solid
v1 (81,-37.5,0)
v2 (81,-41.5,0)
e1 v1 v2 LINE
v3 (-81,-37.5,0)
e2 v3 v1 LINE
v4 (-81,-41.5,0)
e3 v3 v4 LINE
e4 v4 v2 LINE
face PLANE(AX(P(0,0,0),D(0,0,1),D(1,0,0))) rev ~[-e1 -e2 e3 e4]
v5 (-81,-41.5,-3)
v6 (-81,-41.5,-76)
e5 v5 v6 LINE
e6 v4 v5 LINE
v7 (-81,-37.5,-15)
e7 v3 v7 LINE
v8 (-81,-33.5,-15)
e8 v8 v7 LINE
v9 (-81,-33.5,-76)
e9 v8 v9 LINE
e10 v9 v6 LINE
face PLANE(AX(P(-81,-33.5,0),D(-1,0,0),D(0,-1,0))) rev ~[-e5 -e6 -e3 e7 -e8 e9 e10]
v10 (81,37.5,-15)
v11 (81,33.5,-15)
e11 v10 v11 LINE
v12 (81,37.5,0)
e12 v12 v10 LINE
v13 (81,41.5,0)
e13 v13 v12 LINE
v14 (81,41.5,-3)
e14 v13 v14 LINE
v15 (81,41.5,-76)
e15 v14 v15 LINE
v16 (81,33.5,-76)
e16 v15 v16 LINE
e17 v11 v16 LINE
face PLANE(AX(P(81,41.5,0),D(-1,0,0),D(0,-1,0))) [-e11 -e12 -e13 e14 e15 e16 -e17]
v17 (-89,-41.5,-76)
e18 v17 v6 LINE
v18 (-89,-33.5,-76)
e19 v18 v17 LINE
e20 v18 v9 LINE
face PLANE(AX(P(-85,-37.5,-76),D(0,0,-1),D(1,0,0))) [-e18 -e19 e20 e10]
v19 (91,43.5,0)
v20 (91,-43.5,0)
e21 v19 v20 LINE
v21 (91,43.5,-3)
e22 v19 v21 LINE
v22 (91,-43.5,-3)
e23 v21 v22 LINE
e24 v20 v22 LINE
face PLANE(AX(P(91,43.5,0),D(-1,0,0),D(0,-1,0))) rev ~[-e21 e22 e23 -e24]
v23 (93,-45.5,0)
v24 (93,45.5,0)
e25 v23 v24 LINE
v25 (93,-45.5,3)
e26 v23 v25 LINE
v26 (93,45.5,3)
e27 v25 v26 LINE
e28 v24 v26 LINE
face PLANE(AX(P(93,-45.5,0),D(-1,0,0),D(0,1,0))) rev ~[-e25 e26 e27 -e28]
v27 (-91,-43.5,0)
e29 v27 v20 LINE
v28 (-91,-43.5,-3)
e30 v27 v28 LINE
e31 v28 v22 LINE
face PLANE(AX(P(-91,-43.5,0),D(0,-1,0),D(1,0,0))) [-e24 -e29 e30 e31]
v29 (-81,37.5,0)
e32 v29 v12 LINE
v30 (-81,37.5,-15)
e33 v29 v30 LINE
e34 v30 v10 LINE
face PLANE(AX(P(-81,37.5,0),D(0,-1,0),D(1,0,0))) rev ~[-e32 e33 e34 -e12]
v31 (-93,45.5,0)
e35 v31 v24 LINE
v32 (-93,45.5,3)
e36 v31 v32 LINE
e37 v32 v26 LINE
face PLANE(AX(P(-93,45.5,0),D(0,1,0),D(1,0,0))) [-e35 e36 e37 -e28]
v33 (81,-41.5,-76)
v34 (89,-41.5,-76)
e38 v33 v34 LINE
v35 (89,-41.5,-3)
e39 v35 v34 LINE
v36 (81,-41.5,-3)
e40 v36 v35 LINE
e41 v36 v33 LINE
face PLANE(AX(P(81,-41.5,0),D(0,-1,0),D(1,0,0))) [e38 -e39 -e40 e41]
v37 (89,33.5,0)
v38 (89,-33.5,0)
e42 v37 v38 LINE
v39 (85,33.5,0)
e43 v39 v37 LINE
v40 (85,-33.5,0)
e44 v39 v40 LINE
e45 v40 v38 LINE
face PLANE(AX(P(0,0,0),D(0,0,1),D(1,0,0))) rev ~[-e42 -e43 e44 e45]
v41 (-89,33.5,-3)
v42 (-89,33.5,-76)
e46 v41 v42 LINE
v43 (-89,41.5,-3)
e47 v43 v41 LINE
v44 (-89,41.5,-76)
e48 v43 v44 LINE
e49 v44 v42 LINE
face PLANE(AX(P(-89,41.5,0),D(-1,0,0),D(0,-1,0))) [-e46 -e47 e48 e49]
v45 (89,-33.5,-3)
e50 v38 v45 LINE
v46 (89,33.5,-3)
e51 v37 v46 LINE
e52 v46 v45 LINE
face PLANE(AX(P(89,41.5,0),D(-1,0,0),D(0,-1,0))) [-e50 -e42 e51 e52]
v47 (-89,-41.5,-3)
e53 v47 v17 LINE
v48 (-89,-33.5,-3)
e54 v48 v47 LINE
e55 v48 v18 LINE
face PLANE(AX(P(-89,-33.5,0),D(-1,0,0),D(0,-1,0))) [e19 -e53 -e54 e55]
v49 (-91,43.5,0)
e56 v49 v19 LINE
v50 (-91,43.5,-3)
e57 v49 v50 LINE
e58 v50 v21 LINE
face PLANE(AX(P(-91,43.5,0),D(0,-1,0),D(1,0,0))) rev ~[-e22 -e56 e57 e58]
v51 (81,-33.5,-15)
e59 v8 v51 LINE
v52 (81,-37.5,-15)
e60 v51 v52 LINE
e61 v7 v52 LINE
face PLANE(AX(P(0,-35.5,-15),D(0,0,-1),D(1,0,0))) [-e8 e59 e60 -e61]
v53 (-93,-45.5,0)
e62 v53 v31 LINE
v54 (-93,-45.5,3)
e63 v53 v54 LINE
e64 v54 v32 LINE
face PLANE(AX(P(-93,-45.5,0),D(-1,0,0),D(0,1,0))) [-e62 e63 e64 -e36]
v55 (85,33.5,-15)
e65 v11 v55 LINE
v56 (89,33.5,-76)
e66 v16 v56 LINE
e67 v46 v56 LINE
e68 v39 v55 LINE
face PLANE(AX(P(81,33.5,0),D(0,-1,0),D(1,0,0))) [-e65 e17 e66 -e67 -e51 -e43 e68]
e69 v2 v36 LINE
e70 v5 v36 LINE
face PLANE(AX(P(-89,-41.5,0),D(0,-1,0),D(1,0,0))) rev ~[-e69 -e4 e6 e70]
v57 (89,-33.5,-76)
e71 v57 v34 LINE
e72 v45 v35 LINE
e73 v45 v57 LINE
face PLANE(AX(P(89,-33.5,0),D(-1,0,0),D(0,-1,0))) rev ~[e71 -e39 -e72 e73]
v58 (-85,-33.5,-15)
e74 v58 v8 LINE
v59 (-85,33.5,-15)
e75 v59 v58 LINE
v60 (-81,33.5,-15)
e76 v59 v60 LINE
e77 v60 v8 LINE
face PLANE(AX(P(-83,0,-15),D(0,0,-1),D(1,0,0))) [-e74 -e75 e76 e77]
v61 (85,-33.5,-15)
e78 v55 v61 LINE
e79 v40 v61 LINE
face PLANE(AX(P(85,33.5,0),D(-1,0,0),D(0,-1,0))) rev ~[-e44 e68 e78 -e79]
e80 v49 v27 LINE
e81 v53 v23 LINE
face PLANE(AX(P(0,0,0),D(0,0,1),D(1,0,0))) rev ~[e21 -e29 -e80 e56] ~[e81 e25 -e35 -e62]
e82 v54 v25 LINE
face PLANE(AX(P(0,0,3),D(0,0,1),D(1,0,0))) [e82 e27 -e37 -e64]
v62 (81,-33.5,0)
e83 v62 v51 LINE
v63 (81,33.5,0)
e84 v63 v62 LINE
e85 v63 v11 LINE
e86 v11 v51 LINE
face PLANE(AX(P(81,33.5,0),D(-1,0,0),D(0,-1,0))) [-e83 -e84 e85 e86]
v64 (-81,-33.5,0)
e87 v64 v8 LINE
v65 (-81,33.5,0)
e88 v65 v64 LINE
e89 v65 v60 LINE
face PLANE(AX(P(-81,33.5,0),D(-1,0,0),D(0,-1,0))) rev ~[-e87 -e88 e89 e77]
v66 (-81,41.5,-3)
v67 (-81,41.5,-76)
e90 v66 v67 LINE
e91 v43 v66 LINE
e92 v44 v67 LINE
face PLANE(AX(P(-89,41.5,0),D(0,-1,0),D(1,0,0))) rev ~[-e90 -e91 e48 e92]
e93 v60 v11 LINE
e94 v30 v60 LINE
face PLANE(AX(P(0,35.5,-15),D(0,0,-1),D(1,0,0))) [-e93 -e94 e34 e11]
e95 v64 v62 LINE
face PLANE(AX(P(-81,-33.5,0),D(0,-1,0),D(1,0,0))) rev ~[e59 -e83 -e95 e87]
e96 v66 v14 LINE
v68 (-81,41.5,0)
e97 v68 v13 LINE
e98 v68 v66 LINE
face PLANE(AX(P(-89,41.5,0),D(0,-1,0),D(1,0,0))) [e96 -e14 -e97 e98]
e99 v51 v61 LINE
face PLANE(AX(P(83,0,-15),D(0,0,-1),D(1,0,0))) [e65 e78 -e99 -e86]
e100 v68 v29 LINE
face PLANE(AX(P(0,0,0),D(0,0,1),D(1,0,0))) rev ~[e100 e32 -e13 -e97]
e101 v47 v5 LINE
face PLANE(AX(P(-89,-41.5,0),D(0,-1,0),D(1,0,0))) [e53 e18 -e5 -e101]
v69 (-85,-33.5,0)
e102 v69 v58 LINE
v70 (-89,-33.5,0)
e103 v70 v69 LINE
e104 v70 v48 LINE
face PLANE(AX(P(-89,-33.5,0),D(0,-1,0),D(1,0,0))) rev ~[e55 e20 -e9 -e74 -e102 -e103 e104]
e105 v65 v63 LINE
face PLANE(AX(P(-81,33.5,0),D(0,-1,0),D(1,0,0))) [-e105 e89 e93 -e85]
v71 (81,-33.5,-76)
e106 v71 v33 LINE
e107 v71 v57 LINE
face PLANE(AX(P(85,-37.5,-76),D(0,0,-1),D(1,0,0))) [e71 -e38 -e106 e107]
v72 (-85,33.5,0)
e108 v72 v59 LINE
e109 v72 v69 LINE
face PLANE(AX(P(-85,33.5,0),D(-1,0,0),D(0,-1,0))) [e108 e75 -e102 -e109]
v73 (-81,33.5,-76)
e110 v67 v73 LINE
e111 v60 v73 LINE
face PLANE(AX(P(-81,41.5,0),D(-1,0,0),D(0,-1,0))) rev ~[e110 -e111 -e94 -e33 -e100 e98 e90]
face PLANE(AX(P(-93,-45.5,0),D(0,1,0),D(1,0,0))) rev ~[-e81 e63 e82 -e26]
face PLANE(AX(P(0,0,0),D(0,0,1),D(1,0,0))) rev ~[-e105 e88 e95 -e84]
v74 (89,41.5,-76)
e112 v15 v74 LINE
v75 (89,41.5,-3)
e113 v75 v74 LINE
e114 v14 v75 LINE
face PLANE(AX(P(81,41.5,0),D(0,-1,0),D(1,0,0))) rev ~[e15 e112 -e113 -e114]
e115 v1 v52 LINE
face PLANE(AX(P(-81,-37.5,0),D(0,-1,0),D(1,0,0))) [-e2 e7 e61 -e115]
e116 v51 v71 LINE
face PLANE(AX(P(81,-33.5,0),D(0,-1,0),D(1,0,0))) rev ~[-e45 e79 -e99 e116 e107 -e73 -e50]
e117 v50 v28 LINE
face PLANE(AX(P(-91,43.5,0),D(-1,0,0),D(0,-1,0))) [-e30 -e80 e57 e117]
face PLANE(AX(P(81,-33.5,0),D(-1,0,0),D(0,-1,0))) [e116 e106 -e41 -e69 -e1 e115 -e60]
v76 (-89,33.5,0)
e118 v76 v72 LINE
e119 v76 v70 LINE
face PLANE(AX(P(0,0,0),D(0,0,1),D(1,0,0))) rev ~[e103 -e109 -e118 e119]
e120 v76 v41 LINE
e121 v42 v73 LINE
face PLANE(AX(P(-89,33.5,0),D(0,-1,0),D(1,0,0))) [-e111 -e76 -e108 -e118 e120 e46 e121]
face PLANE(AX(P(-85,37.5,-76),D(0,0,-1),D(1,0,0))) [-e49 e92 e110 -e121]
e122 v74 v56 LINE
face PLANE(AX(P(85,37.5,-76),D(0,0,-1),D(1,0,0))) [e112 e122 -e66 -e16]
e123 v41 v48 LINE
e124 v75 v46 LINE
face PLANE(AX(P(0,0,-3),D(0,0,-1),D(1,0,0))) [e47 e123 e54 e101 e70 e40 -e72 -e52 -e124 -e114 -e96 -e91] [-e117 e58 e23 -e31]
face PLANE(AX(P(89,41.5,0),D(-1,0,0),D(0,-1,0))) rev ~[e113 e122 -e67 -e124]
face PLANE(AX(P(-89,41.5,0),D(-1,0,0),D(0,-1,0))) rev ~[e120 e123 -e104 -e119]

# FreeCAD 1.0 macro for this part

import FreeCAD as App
import Part
import Sketcher

V = App.Vector


def add_polygon(sketch, points):
    """Adds a closed chain of lines whose ends are joined by coincident constraints."""
    first, n = sketch.GeometryCount, len(points)
    for a, b in zip(points, points[1:] + points[:1]):
        sketch.addGeometry(Part.LineSegment(App.Vector(*a, 0), App.Vector(*b, 0)), False)
    for i in range(n):
        sketch.addConstraint(Sketcher.Constraint("Coincident", first + i, 2, first + (i + 1) % n, 1))

doc = App.newDocument("Part")
body = doc.addObject("PartDesign::Body", "Body")

sketch1 = body.newObject("Sketcher::SketchObject", "Sketch")
sketch1.AttachmentSupport = (doc.getObject("XY_Plane"), [""])
sketch1.MapMode = "FlatFace"
add_polygon(sketch1, [(-93, 45.5), (-93, -45.5), (93, -45.5), (93, 45.5)])
sketch1.addConstraint([
    Sketcher.Constraint("Vertical", 0),
    Sketcher.Constraint("Horizontal", 1),
    Sketcher.Constraint("Vertical", 2),
    Sketcher.Constraint("Horizontal", 3),
    Sketcher.Constraint("Symmetric", 0, 2, 2, 2, -1, 1),
    Sketcher.Constraint("DistanceX", 1, 1, 1, 2, 186.0),
    Sketcher.Constraint("DistanceY", 0, 2, 0, 1, 91.0),
])
pad1 = body.newObject("PartDesign::Pad", "Pad")
pad1.Profile = sketch1
pad1.Length = 3

sketch2 = body.newObject("Sketcher::SketchObject", "Sketch001")
sketch2.AttachmentSupport = (doc.getObject("XY_Plane"), [""])
sketch2.MapMode = "FlatFace"
add_polygon(sketch2, [(-91, -43.5), (-91, 43.5), (91, 43.5), (91, -43.5)])
add_polygon(sketch2, [(89, 41.5), (-89, 41.5), (-89, -41.5), (89, -41.5)])
sketch2.addConstraint([
    Sketcher.Constraint("Vertical", 0),
    Sketcher.Constraint("Horizontal", 1),
    Sketcher.Constraint("Vertical", 2),
    Sketcher.Constraint("Horizontal", 3),
    Sketcher.Constraint("Horizontal", 4),
    Sketcher.Constraint("Vertical", 5),
    Sketcher.Constraint("Horizontal", 6),
    Sketcher.Constraint("Vertical", 7),
    Sketcher.Constraint("Symmetric", 0, 2, 2, 2, -1, 1),
    Sketcher.Constraint("Symmetric", 4, 2, 6, 2, -1, 1),
    Sketcher.Constraint("DistanceX", 1, 1, 1, 2, 182.0),
    Sketcher.Constraint("DistanceX", 4, 2, 4, 1, 178.0),
    Sketcher.Constraint("DistanceY", 0, 1, 0, 2, 87.0),
    Sketcher.Constraint("DistanceY", 5, 2, 5, 1, 83.0),
])
pad2 = body.newObject("PartDesign::Pad", "Pad001")
pad2.Profile = sketch2
pad2.Length = 3
pad2.Reversed = True

sketch3 = body.newObject("Sketcher::SketchObject", "Sketch002")
sketch3.AttachmentSupport = (doc.getObject("XY_Plane"), [""])
sketch3.MapMode = "FlatFace"
add_polygon(sketch3, [(-89, -41.5), (-89, -33.5), (-81, -33.5), (-81, -41.5)])
add_polygon(sketch3, [(-89, 33.5), (-89, 41.5), (-81, 41.5), (-81, 33.5)])
add_polygon(sketch3, [(81, -41.5), (81, -33.5), (89, -33.5), (89, -41.5)])
add_polygon(sketch3, [(81, 33.5), (81, 41.5), (89, 41.5), (89, 33.5)])
sketch3.addConstraint([
    Sketcher.Constraint("Vertical", 0),
    Sketcher.Constraint("Horizontal", 1),
    Sketcher.Constraint("Vertical", 2),
    Sketcher.Constraint("Horizontal", 3),
    Sketcher.Constraint("Vertical", 4),
    Sketcher.Constraint("Horizontal", 5),
    Sketcher.Constraint("Vertical", 6),
    Sketcher.Constraint("Horizontal", 7),
    Sketcher.Constraint("Vertical", 8),
    Sketcher.Constraint("Horizontal", 9),
    Sketcher.Constraint("Vertical", 10),
    Sketcher.Constraint("Horizontal", 11),
    Sketcher.Constraint("Vertical", 12),
    Sketcher.Constraint("Horizontal", 13),
    Sketcher.Constraint("Vertical", 14),
    Sketcher.Constraint("Horizontal", 15),
    Sketcher.Constraint("Symmetric", 6, 2, 8, 2, -1, 1),
    Sketcher.Constraint("Symmetric", 4, 2, 10, 2, -1, 1),
    Sketcher.Constraint("Symmetric", 2, 2, 12, 2, -1, 1),
    Sketcher.Constraint("Symmetric", 0, 2, 14, 2, -1, 1),
    Sketcher.Constraint("Symmetric", 1, 2, 8, 2, -2),
    Sketcher.Constraint("Symmetric", 3, 2, 10, 2, -2),
    Sketcher.Constraint("Equal", 15, 0),
    Sketcher.Constraint("DistanceX", 1, 1, 1, 2, 8.0),
    Sketcher.Constraint("DistanceX", 0, 2, -1, 1, 89.0),
    Sketcher.Constraint("DistanceY", 0, 2, 4, 2, 75.0),
])
pad3 = body.newObject("PartDesign::Pad", "Pad002")
pad3.Profile = sketch3
pad3.Length = 76
pad3.Reversed = True

sketch4 = body.newObject("Sketcher::SketchObject", "Sketch003")
sketch4.AttachmentSupport = (doc.getObject("XY_Plane"), [""])
sketch4.MapMode = "FlatFace"
add_polygon(sketch4, [(81, -33.5), (81, 33.5), (85, 33.5), (85, -33.5)])
add_polygon(sketch4, [(-81, 33.5), (-81, 37.5), (81, 37.5), (81, 33.5)])
add_polygon(sketch4, [(-85, -33.5), (-85, 33.5), (-81, 33.5), (-81, -33.5)])
add_polygon(sketch4, [(-81, -37.5), (-81, -33.5), (81, -33.5), (81, -37.5)])
sketch4.addConstraint([
    Sketcher.Constraint("Vertical", 0),
    Sketcher.Constraint("Horizontal", 1),
    Sketcher.Constraint("Vertical", 2),
    Sketcher.Constraint("Horizontal", 3),
    Sketcher.Constraint("Vertical", 4),
    Sketcher.Constraint("Horizontal", 5),
    Sketcher.Constraint("Vertical", 6),
    Sketcher.Constraint("Horizontal", 7),
    Sketcher.Constraint("Vertical", 8),
    Sketcher.Constraint("Horizontal", 9),
    Sketcher.Constraint("Vertical", 10),
    Sketcher.Constraint("Horizontal", 11),
    Sketcher.Constraint("Vertical", 12),
    Sketcher.Constraint("Horizontal", 13),
    Sketcher.Constraint("Vertical", 14),
    Sketcher.Constraint("Horizontal", 15),
    Sketcher.Constraint("Coincident", 6, 2, 0, 2),
    Sketcher.Constraint("Coincident", 9, 2, 7, 2),
    Sketcher.Constraint("Coincident", 12, 2, 10, 2),
    Sketcher.Constraint("Coincident", 13, 2, 3, 2),
    Sketcher.Constraint("Symmetric", 3, 2, 7, 2, -1, 1),
    Sketcher.Constraint("Equal", 3, 9),
    Sketcher.Constraint("Equal", 11, 4),
    Sketcher.Constraint("Equal", 6, 12),
    Sketcher.Constraint("DistanceX", 1, 1, 1, 2, 4.0),
    Sketcher.Constraint("DistanceX", 5, 1, 5, 2, 162.0),
    Sketcher.Constraint("DistanceY", 0, 1, 0, 2, 67.0),
])
pad4 = body.newObject("PartDesign::Pad", "Pad003")
pad4.Profile = sketch4
pad4.Length = 15
pad4.Reversed = True

doc.recompute()
